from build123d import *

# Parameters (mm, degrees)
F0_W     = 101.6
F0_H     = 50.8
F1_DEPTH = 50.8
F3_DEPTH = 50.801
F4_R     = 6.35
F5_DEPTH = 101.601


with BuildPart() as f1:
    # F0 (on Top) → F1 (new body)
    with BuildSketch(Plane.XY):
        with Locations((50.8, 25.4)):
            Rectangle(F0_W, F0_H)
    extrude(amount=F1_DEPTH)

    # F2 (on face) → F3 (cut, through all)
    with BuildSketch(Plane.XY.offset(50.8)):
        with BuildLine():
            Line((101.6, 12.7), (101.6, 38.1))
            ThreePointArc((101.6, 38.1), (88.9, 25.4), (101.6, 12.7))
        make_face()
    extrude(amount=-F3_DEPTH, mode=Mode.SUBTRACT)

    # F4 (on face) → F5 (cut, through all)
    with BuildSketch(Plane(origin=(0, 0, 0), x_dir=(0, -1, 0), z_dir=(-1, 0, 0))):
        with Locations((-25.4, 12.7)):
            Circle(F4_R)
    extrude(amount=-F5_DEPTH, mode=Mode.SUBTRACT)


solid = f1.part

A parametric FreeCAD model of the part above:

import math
import FreeCAD as App
import Part
import Sketcher
Q = App.Units.Quantity

doc = App.newDocument("Part")
body = doc.addObject("PartDesign::Body", "Body")

sketch1 = body.newObject("Sketcher::SketchObject", "Sketch")
sketch1.AttachmentSupport = (doc.getObject("XY_Plane"), [""])
sketch1.MapMode = "FlatFace"
sketch1.addGeometry([
    Part.LineSegment(App.Vector(0, 51, 0), App.Vector(0, 0, 0)),
    Part.LineSegment(App.Vector(0, 0, 0), App.Vector(102, 0, 0)),
    Part.LineSegment(App.Vector(102, 0, 0), App.Vector(102, 51, 0)),
    Part.LineSegment(App.Vector(102, 51, 0), App.Vector(0, 51, 0)),
], False)
sketch1.addConstraint([
    Sketcher.Constraint("Coincident", 0, 2, 1, 1),
    Sketcher.Constraint("Coincident", 1, 2, 2, 1),
    Sketcher.Constraint("Coincident", 2, 2, 3, 1),
    Sketcher.Constraint("Coincident", 3, 2, 0, 1),
    Sketcher.Constraint("Vertical", 0),
    Sketcher.Constraint("Horizontal", 1),
    Sketcher.Constraint("Vertical", 2),
    Sketcher.Constraint("Horizontal", 3),
    Sketcher.Constraint("Coincident", 0, 2, -1, 1),
    Sketcher.Constraint("DistanceX", 1, 1, 1, 2, Q("4 in")),
    Sketcher.Constraint("DistanceY", 0, 2, 0, 1, Q("2 in")),
])
pad1 = body.newObject("PartDesign::Pad", "Pad")
pad1.Profile = sketch1
pad1.Length = Q("2 in")

sketch2 = body.newObject("Sketcher::SketchObject", "Sketch001")
sketch2.AttachmentSupport = (doc.getObject("XY_Plane"), [""])
sketch2.MapMode = "FlatFace"
sketch2.AttachmentOffset = App.Placement(App.Vector(0, 0, 2 * 25.4), App.Rotation())
sketch2.addGeometry([
    Part.LineSegment(App.Vector(102, 13, 0), App.Vector(102, 38, 0)),
    Part.ArcOfCircle(Part.Circle(App.Vector(102, 25, 0), App.Vector(0, 0, 1), 13), math.radians(90), math.radians(270)),
], False)
sketch2.addConstraint([
    Sketcher.Constraint("Coincident", 0, 1, 1, 2),
    Sketcher.Constraint("Coincident", 1, 1, 0, 2),
    Sketcher.Constraint("Vertical", 0),
    Sketcher.Constraint("Vertical", 1, 3, 0, 1),
    Sketcher.Constraint("Radius", 1, Q("0.5 in")),
    Sketcher.Constraint("DistanceX", -1, 1, 1, 3, Q("4 in")),
    Sketcher.Constraint("DistanceY", -1, 1, 1, 3, Q("1 in")),
])
pocket1 = body.newObject("PartDesign::Pocket", "Pocket")
pocket1.Profile = sketch2
pocket1.Type = "ThroughAll"

sketch3 = body.newObject("Sketcher::SketchObject", "Sketch002")
sketch3.AttachmentSupport = (doc.getObject("YZ_Plane"), [""])
sketch3.MapMode = "FlatFace"
sketch3.addGeometry(Part.Circle(App.Vector(25, 13, 0), App.Vector(0, 0, 1), 6), False)
sketch3.addConstraint([
    Sketcher.Constraint("Diameter", 0, Q("0.5 in")),
    Sketcher.Constraint("DistanceX", -1, 1, 0, 3, Q("1 in")),
    Sketcher.Constraint("DistanceY", -1, 1, 0, 3, Q("0.5 in")),
])
pocket2 = body.newObject("PartDesign::Pocket", "Pocket001")
pocket2.Profile = sketch3
pocket2.Type = "ThroughAll"
pocket2.Reversed = True

doc.recompute()
